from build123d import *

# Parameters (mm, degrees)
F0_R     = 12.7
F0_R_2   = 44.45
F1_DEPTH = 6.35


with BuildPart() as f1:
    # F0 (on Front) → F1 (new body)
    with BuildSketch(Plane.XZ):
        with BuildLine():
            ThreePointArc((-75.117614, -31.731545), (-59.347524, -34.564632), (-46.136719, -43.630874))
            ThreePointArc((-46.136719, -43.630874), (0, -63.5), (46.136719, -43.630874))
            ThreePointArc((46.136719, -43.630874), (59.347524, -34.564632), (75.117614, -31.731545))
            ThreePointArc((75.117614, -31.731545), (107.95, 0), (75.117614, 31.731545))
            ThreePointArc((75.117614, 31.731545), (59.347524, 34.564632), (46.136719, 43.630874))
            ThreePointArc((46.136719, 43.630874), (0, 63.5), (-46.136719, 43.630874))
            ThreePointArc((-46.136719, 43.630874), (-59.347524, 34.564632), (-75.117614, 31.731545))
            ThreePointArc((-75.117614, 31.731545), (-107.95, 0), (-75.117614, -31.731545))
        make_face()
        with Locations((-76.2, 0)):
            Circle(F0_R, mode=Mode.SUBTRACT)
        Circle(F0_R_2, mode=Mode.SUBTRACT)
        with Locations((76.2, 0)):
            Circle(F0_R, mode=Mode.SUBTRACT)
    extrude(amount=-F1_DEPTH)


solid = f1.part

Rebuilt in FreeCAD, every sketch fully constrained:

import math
import FreeCAD as App
import Part
import Sketcher

V = App.Vector
Q = App.Units.Quantity

doc = App.newDocument("Part")
body = doc.addObject("PartDesign::Body", "Body")

sketch1 = doc.addObject("Sketcher::SketchObject", "Sketch")
body.addObject(sketch1)
sketch1.AttachmentSupport = (doc.XZ_Plane, [""])
sketch1.MapMode = "FlatFace"
sketch1.addGeometry([
    Part.ArcOfCircle(Part.Circle(V(-73.818752, -69.809403, 0), V(0, 0, 1), 38.100004), math.radians(43.401018), math.radians(91.953642)),
    Part.ArcOfCircle(Part.Circle(V(0, 0, 0), V(0, 0, 1), 63.5), math.radians(-136.598985), math.radians(-43.401015)),
    Part.ArcOfCircle(Part.Circle(V(73.818752, -69.809403, 0), V(0, 0, 1), 38.100004), math.radians(88.046358), math.radians(136.598982)),
    Part.ArcOfCircle(Part.Circle(V(76.2, 0, 0), V(0, 0, 1), 31.75), math.radians(-91.953643), math.radians(91.953643)),
    Part.ArcOfCircle(Part.Circle(V(73.818752, 69.809403, 0), V(0, 0, 1), 38.100004), math.radians(-136.598982), math.radians(-88.046358)),
    Part.ArcOfCircle(Part.Circle(V(0, 0, 0), V(0, 0, 1), 63.5), math.radians(43.401015), math.radians(136.598985)),
    Part.ArcOfCircle(Part.Circle(V(-73.818752, 69.809403, 0), V(0, 0, 1), 38.100004), math.radians(-91.953642), math.radians(-43.401018)),
    Part.ArcOfCircle(Part.Circle(V(-76.2, 0, 0), V(0, 0, 1), 31.75), math.radians(88.046357), math.radians(271.953643)),
    Part.Circle(V(-76.2, 0, 0), V(0, 0, 1), 12.7),
    Part.Circle(V(0, 0, 0), V(0, 0, 1), 44.45),
    Part.Circle(V(76.2, 0, 0), V(0, 0, 1), 12.7),
], False)
sketch1.addConstraint([
    Sketcher.Constraint("Tangent", 0, 1, 1, 1),
    Sketcher.Constraint("Tangent", 1, 2, 2, 2),
    Sketcher.Constraint("Tangent", 2, 1, 3, 1),
    Sketcher.Constraint("Tangent", 3, 2, 4, 2),
    Sketcher.Constraint("Tangent", 4, 1, 5, 1),
    Sketcher.Constraint("Tangent", 5, 2, 6, 2),
    Sketcher.Constraint("Tangent", 6, 1, 7, 1),
    Sketcher.Constraint("Tangent", 7, 2, 0, 2),
    Sketcher.Constraint("Coincident", 1, 3, -1, 1),
    Sketcher.Constraint("Coincident", 5, 3, -1, 1),
    Sketcher.Constraint("Coincident", 9, 3, -1, 1),
    Sketcher.Constraint("Coincident", 8, 3, 7, 3),
    Sketcher.Constraint("Coincident", 10, 3, 3, 3),
    Sketcher.Constraint("Equal", 0, 2),
    Sketcher.Constraint("Equal", 2, 4),
    Sketcher.Constraint("Equal", 1, 5),
    Sketcher.Constraint("Equal", 4, 6),
    Sketcher.Constraint("Equal", 3, 7),
    Sketcher.Constraint("Equal", 8, 10),
    Sketcher.Constraint("Symmetric", 3, 3, 7, 3, -1, 1),
    Sketcher.Constraint("PointOnObject", 3, 3, -1),
    Sketcher.Constraint("Diameter", 8, Q("1 in")),
    Sketcher.Constraint("Diameter", 9, Q("3.5 in")),
    Sketcher.Constraint("Radius", 0, Q("1.5000002 in")),
    Sketcher.Constraint("Radius", 1, Q("2.5 in")),
    Sketcher.Constraint("Radius", 3, Q("1.25 in")),
    Sketcher.Constraint("DistanceX", -1, 1, 3, 3, Q("3 in")),
])
pad1 = doc.addObject("PartDesign::Pad", "Pad")
body.addObject(pad1)
pad1.Profile = sketch1
pad1.Length = Q("0.25 in")
pad1.Reversed = True

doc.recompute()
